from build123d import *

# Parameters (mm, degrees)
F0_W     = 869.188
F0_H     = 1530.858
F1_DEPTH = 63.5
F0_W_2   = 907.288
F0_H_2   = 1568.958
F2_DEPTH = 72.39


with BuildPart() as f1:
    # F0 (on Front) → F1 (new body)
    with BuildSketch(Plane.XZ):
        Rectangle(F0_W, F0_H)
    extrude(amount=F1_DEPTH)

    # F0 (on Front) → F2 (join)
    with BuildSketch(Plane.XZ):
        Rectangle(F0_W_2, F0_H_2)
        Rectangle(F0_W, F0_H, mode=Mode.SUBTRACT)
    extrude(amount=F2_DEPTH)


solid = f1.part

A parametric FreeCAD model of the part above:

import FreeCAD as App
import Part
import Sketcher
Q = App.Units.Quantity

doc = App.newDocument("Part")
params = doc.addObject("Spreadsheet::Sheet", "Params")
for row, (alias, value) in enumerate([
    ("sketch1_width", "34.22 in"),
    ("sketch1_height", "60.27 in"),
    ("pad1_length", "2.5 in"),
    ("sketch2_width", "35.72 in"),
    ("sketch2_width2", "34.22 in"),
    ("sketch2_height", "61.77 in"),
    ("sketch2_height2", "60.27 in"),
    ("pad2_length", "2.85 in"),
], start=1):
    params.set(f"A{row}", alias)
    params.set(f"B{row}", "=" + value)
    params.setAlias(f"B{row}", alias)

body = doc.addObject("PartDesign::Body", "Body")

# Sketch on XZ plane
sketch1 = body.newObject("Sketcher::SketchObject", "Sketch")
sketch1.AttachmentSupport = (doc.getObject("XZ_Plane"), [""])
sketch1.MapMode = "FlatFace"
sketch1.addGeometry([
    Part.LineSegment(App.Vector(-434.594, 765.429, 0), App.Vector(-434.594, -765.429, 0)),
    Part.LineSegment(App.Vector(-434.594, -765.429, 0), App.Vector(434.594, -765.429, 0)),
    Part.LineSegment(App.Vector(434.594, -765.429, 0), App.Vector(434.594, 765.429, 0)),
    Part.LineSegment(App.Vector(434.594, 765.429, 0), App.Vector(-434.594, 765.429, 0)),
], False)
sketch1.addConstraint([
    Sketcher.Constraint("Coincident", 0, 2, 1, 1),
    Sketcher.Constraint("Coincident", 1, 2, 2, 1),
    Sketcher.Constraint("Coincident", 2, 2, 3, 1),
    Sketcher.Constraint("Coincident", 3, 2, 0, 1),
    Sketcher.Constraint("Vertical", 0),
    Sketcher.Constraint("Horizontal", 1),
    Sketcher.Constraint("Vertical", 2),
    Sketcher.Constraint("Horizontal", 3),
    Sketcher.Constraint("Symmetric", 0, 2, 2, 2, -1, 1),
    Sketcher.Constraint("DistanceX", 1, 1, 1, 2, Q("34.22 in")),
    Sketcher.Constraint("DistanceY", 0, 2, 0, 1, Q("60.27 in")),
])
sketch1.setExpression("Constraints[9]", "Params.sketch1_width")
sketch1.setExpression("Constraints[10]", "Params.sketch1_height")
pad1 = body.newObject("PartDesign::Pad", "Pad")
pad1.Profile = sketch1
pad1.setExpression("Length", "Params.pad1_length")

# Sketch on XZ plane
sketch2 = body.newObject("Sketcher::SketchObject", "Sketch001")
sketch2.AttachmentSupport = (doc.getObject("XZ_Plane"), [""])
sketch2.MapMode = "FlatFace"
sketch2.addGeometry([
    Part.LineSegment(App.Vector(-453.644, 784.479, 0), App.Vector(-453.644, -784.479, 0)),  # 0
    Part.LineSegment(App.Vector(-453.644, -784.479, 0), App.Vector(453.644, -784.479, 0)),  # 1
    Part.LineSegment(App.Vector(453.644, -784.479, 0), App.Vector(453.644, 784.479, 0)),  # 2
    Part.LineSegment(App.Vector(453.644, 784.479, 0), App.Vector(-453.644, 784.479, 0)),  # 3
    Part.LineSegment(App.Vector(434.594, -765.429, 0), App.Vector(-434.594, -765.429, 0)),  # 4
    Part.LineSegment(App.Vector(-434.594, -765.429, 0), App.Vector(-434.594, 765.429, 0)),  # 5
    Part.LineSegment(App.Vector(-434.594, 765.429, 0), App.Vector(434.594, 765.429, 0)),  # 6
    Part.LineSegment(App.Vector(434.594, 765.429, 0), App.Vector(434.594, -765.429, 0)),  # 7
], False)
sketch2.addConstraint([
    Sketcher.Constraint("Coincident", 0, 2, 1, 1),
    Sketcher.Constraint("Coincident", 1, 2, 2, 1),
    Sketcher.Constraint("Coincident", 2, 2, 3, 1),
    Sketcher.Constraint("Coincident", 3, 2, 0, 1),
    Sketcher.Constraint("Coincident", 4, 2, 5, 1),
    Sketcher.Constraint("Coincident", 5, 2, 6, 1),
    Sketcher.Constraint("Coincident", 6, 2, 7, 1),
    Sketcher.Constraint("Coincident", 7, 2, 4, 1),
    Sketcher.Constraint("Vertical", 0),
    Sketcher.Constraint("Horizontal", 1),
    Sketcher.Constraint("Vertical", 2),
    Sketcher.Constraint("Horizontal", 3),
    Sketcher.Constraint("Horizontal", 4),
    Sketcher.Constraint("Vertical", 5),
    Sketcher.Constraint("Horizontal", 6),
    Sketcher.Constraint("Vertical", 7),
    Sketcher.Constraint("Symmetric", 0, 2, 2, 2, -1, 1),
    Sketcher.Constraint("Symmetric", 4, 2, 6, 2, -1, 1),
    Sketcher.Constraint("DistanceX", 1, 1, 1, 2, Q("35.72 in")),
    Sketcher.Constraint("DistanceX", 4, 2, 4, 1, Q("34.22 in")),
    Sketcher.Constraint("DistanceY", 0, 2, 0, 1, Q("61.77 in")),
    Sketcher.Constraint("DistanceY", 5, 1, 5, 2, Q("60.27 in")),
])
sketch2.setExpression("Constraints[18]", "Params.sketch2_width")
sketch2.setExpression("Constraints[19]", "Params.sketch2_width2")
sketch2.setExpression("Constraints[20]", "Params.sketch2_height")
sketch2.setExpression("Constraints[21]", "Params.sketch2_height2")
pad2 = body.newObject("PartDesign::Pad", "Pad001")
pad2.Profile = sketch2
pad2.setExpression("Length", "Params.pad2_length")

doc.recompute()
